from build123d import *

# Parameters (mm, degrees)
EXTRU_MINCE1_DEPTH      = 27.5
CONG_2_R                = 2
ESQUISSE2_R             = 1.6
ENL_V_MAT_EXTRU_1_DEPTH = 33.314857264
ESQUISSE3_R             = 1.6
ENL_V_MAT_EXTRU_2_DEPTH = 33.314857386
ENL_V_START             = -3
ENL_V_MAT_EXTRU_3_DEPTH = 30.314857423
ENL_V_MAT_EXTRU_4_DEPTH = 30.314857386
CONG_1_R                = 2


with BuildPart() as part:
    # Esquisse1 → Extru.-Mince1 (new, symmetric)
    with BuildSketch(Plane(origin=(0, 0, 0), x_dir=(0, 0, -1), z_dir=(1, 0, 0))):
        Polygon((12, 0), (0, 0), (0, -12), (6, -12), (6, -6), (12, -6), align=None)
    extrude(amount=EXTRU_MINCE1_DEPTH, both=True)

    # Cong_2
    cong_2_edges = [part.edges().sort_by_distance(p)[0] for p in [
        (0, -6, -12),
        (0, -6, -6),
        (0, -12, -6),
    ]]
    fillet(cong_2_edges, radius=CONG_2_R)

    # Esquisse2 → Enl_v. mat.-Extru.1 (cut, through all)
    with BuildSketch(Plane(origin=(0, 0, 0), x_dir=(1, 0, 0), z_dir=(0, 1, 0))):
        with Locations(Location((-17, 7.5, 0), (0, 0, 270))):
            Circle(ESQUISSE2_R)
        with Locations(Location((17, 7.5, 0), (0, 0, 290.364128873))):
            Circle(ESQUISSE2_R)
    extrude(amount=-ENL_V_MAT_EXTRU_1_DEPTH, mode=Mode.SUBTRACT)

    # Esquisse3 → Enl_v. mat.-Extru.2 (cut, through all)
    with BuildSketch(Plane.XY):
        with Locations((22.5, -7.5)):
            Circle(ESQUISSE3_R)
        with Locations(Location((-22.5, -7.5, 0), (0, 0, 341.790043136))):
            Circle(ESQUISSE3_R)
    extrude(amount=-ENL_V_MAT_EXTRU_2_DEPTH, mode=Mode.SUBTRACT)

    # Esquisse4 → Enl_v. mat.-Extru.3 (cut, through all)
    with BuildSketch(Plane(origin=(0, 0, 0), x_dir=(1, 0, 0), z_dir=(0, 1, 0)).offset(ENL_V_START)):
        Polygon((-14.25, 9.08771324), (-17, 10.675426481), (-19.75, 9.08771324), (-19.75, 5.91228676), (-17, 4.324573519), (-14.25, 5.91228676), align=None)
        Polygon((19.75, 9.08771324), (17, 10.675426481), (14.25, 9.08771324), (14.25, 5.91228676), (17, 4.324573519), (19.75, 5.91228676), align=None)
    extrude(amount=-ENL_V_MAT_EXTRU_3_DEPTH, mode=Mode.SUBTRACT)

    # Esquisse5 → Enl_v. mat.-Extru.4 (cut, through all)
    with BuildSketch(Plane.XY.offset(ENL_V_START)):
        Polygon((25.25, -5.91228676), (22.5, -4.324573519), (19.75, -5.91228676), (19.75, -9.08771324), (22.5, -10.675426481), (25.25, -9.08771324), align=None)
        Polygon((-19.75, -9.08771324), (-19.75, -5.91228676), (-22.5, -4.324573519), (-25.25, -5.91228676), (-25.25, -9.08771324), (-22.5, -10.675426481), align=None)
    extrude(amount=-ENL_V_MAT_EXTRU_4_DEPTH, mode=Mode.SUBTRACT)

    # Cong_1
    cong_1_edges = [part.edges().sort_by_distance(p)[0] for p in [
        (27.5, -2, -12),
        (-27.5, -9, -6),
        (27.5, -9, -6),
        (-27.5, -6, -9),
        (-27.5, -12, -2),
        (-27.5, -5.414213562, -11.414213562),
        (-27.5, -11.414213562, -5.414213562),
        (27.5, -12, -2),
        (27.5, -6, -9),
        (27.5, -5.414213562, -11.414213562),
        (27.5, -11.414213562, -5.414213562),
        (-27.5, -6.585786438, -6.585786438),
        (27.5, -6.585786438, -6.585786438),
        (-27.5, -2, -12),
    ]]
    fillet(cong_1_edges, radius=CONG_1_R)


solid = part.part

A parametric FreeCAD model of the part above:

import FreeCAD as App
import Part
import Sketcher
Q = App.Units.Quantity


def edges_at(feature, points):
    """Names of the edges that pass closest to the given points."""
    edges = feature.Shape.Edges
    near = lambda p: min(range(len(edges)), key=lambda i: edges[i].distToShape(Part.Vertex(*p))[0])
    return sorted({f"Edge{near(p) + 1}" for p in points})

doc = App.newDocument("Part")
body = doc.addObject("PartDesign::Body", "Body")

# Sketch on YZ plane
sketch1 = body.newObject("Sketcher::SketchObject", "Sketch")
sketch1.AttachmentSupport = (doc.getObject("YZ_Plane"), [""])
sketch1.MapMode = "FlatFace"
sketch1.addGeometry(Part.LineSegment(App.Vector(0, -12, 0), App.Vector(0, 0, 0)), False)
sketch1.addGeometry(Part.LineSegment(App.Vector(0, 0, 0), App.Vector(-12, 0, 0)), False)
sketch1.addGeometry(Part.LineSegment(App.Vector(-12, 0, 0), App.Vector(-12, -6, 0)), False)
sketch1.addGeometry(Part.LineSegment(App.Vector(-12, -6, 0), App.Vector(-6, -6, 0)), False)
sketch1.addGeometry(Part.LineSegment(App.Vector(-6, -6, 0), App.Vector(-6, -12, 0)), False)
sketch1.addGeometry(Part.LineSegment(App.Vector(-6, -12, 0), App.Vector(0, -12, 0)), False)
sketch1.addConstraint(Sketcher.Constraint("Coincident", 0, 2, 1, 1))
sketch1.addConstraint(Sketcher.Constraint("Coincident", 1, 2, 2, 1))
sketch1.addConstraint(Sketcher.Constraint("Coincident", 2, 2, 3, 1))
sketch1.addConstraint(Sketcher.Constraint("Coincident", 3, 2, 4, 1))
sketch1.addConstraint(Sketcher.Constraint("Coincident", 4, 2, 5, 1))
sketch1.addConstraint(Sketcher.Constraint("Coincident", 5, 2, 0, 1))
sketch1.addConstraint(Sketcher.Constraint("Vertical", 0))
sketch1.addConstraint(Sketcher.Constraint("Horizontal", 1))
sketch1.addConstraint(Sketcher.Constraint("Vertical", 2))
sketch1.addConstraint(Sketcher.Constraint("Horizontal", 3))
sketch1.addConstraint(Sketcher.Constraint("Vertical", 4))
sketch1.addConstraint(Sketcher.Constraint("Horizontal", 5))
sketch1.addConstraint(Sketcher.Constraint("Coincident", 0, 2, -1, 1))
sketch1.addConstraint(Sketcher.Constraint("Equal", 3, 5))
sketch1.addConstraint(Sketcher.Constraint("Equal", 1, 0))
sketch1.addConstraint(Sketcher.Constraint("Equal", 5, 2))
sketch1.addConstraint(Sketcher.Constraint("DistanceX", 1, 2, 1, 1, 12.0))
pad1 = body.newObject("PartDesign::Pad", "Pad")
pad1.Profile = sketch1
pad1.Length = 55
pad1.Midplane = True
doc.recompute()

fillet = body.newObject("PartDesign::Fillet", "Fillet")
fillet.Base = (pad1, edges_at(pad1, [(0, -6, -12), (0, -6, -6), (0, -12, -6)]))
fillet.Radius = 2

# Sketch on XZ plane
sketch2 = body.newObject("Sketcher::SketchObject", "Sketch001")
sketch2.AttachmentSupport = (doc.getObject("XZ_Plane"), [""])
sketch2.MapMode = "FlatFace"
sketch2.addGeometry(Part.Circle(App.Vector(-17, -7.5, 0), App.Vector(0, 0, 1), 1.6), False)
sketch2.addGeometry(Part.Circle(App.Vector(17, -7.5, 0), App.Vector(0, 0, 1), 1.6), False)
sketch2.addConstraint(Sketcher.Constraint("Equal", 0, 1))
sketch2.addConstraint(Sketcher.Constraint("Symmetric", 0, 3, 1, 3, -2))
sketch2.addConstraint(Sketcher.Constraint("Diameter", 0, 3.2))
sketch2.addConstraint(Sketcher.Constraint("DistanceX", 0, 3, -1, 1, 17.0))
sketch2.addConstraint(Sketcher.Constraint("DistanceY", 0, 3, -1, 1, 7.5))
pocket1 = body.newObject("PartDesign::Pocket", "Pocket")
pocket1.Profile = sketch2
pocket1.Type = "ThroughAll"
pocket1.Reversed = True

# Sketch on XY plane
sketch3 = body.newObject("Sketcher::SketchObject", "Sketch002")
sketch3.AttachmentSupport = (doc.getObject("XY_Plane"), [""])
sketch3.MapMode = "FlatFace"
sketch3.addGeometry(Part.Circle(App.Vector(22.5, -7.5, 0), App.Vector(0, 0, 1), 1.6), False)
sketch3.addGeometry(Part.Circle(App.Vector(-22.5, -7.5, 0), App.Vector(0, 0, 1), 1.6), False)
sketch3.addConstraint(Sketcher.Constraint("Equal", 0, 1))
sketch3.addConstraint(Sketcher.Constraint("Symmetric", 0, 3, 1, 3, -2))
sketch3.addConstraint(Sketcher.Constraint("Diameter", 0, 3.2))
sketch3.addConstraint(Sketcher.Constraint("DistanceX", 1, 3, 0, 3, 45.0))
sketch3.addConstraint(Sketcher.Constraint("DistanceY", 0, 3, -1, 1, 7.5))
pocket2 = body.newObject("PartDesign::Pocket", "Pocket001")
pocket2.Profile = sketch3
pocket2.Type = "ThroughAll"

# Sketch on XZ plane
sketch4 = body.newObject("Sketcher::SketchObject", "Sketch003")
sketch4.AttachmentSupport = (doc.getObject("XZ_Plane"), [""])
sketch4.MapMode = "FlatFace"
sketch4.AttachmentOffset = App.Placement(App.Vector(0, 0, 3), App.Rotation())
sketch4.addGeometry(Part.LineSegment(App.Vector(-14.2, -9.1, 0), App.Vector(-17, -10.7, 0)), False)
sketch4.addGeometry(Part.LineSegment(App.Vector(-17, -10.7, 0), App.Vector(-19.8, -9.1, 0)), False)
sketch4.addGeometry(Part.LineSegment(App.Vector(-19.8, -9.1, 0), App.Vector(-19.8, -5.9, 0)), False)
sketch4.addGeometry(Part.LineSegment(App.Vector(-19.8, -5.9, 0), App.Vector(-17, -4.3, 0)), False)
sketch4.addGeometry(Part.LineSegment(App.Vector(-17, -4.3, 0), App.Vector(-14.2, -5.9, 0)), False)
sketch4.addGeometry(Part.LineSegment(App.Vector(-14.2, -5.9, 0), App.Vector(-14.2, -9.1, 0)), False)
sketch4.addGeometry(Part.LineSegment(App.Vector(19.8, -9.1, 0), App.Vector(17, -10.7, 0)), False)
sketch4.addGeometry(Part.LineSegment(App.Vector(17, -10.7, 0), App.Vector(14.2, -9.1, 0)), False)
sketch4.addGeometry(Part.LineSegment(App.Vector(14.2, -9.1, 0), App.Vector(14.2, -5.9, 0)), False)
sketch4.addGeometry(Part.LineSegment(App.Vector(14.2, -5.9, 0), App.Vector(17, -4.3, 0)), False)
sketch4.addGeometry(Part.LineSegment(App.Vector(17, -4.3, 0), App.Vector(19.8, -5.9, 0)), False)
sketch4.addGeometry(Part.LineSegment(App.Vector(19.8, -5.9, 0), App.Vector(19.8, -9.1, 0)), False)
sketch4.addConstraint(Sketcher.Constraint("Coincident", 0, 2, 1, 1))
sketch4.addConstraint(Sketcher.Constraint("Coincident", 1, 2, 2, 1))
sketch4.addConstraint(Sketcher.Constraint("Coincident", 2, 2, 3, 1))
sketch4.addConstraint(Sketcher.Constraint("Coincident", 3, 2, 4, 1))
sketch4.addConstraint(Sketcher.Constraint("Coincident", 4, 2, 5, 1))
sketch4.addConstraint(Sketcher.Constraint("Coincident", 5, 2, 0, 1))
sketch4.addConstraint(Sketcher.Constraint("Coincident", 6, 2, 7, 1))
sketch4.addConstraint(Sketcher.Constraint("Coincident", 7, 2, 8, 1))
sketch4.addConstraint(Sketcher.Constraint("Coincident", 8, 2, 9, 1))
sketch4.addConstraint(Sketcher.Constraint("Coincident", 9, 2, 10, 1))
sketch4.addConstraint(Sketcher.Constraint("Coincident", 10, 2, 11, 1))
sketch4.addConstraint(Sketcher.Constraint("Coincident", 11, 2, 6, 1))
sketch4.addConstraint(Sketcher.Constraint("Vertical", 2))
sketch4.addConstraint(Sketcher.Constraint("Vertical", 5))
sketch4.addConstraint(Sketcher.Constraint("Vertical", 8))
sketch4.addConstraint(Sketcher.Constraint("Vertical", 11))
sketch4.addConstraint(Sketcher.Constraint("Symmetric", 0, 2, 6, 2, -2))
sketch4.addConstraint(Sketcher.Constraint("Symmetric", 5, 2, 7, 2, -2))
sketch4.addConstraint(Sketcher.Constraint("Symmetric", 3, 2, 9, 2, -2))
sketch4.addConstraint(Sketcher.Constraint("Symmetric", 2, 2, 10, 2, -2))
sketch4.addConstraint(Sketcher.Constraint("Parallel", 0, 3))
sketch4.addConstraint(Sketcher.Constraint("Parallel", 1, 4))
sketch4.addConstraint(Sketcher.Constraint("Parallel", 3, 6))
sketch4.addConstraint(Sketcher.Constraint("Parallel", 4, 7))
sketch4.addConstraint(Sketcher.Constraint("Parallel", 6, 9))
sketch4.addConstraint(Sketcher.Constraint("Horizontal", 2, 2, 4, 2))
sketch4.addConstraint(Sketcher.Constraint("Horizontal", 1, 2, 5, 2))
sketch4.addConstraint(Sketcher.Constraint("Angle", 0, Q("-150 deg")))
sketch4.addConstraint(Sketcher.Constraint("DistanceX", 0, 2, -1, 1, 17.0))
sketch4.addConstraint(Sketcher.Constraint("DistanceX", 2, 2, 4, 2, 5.5))
sketch4.addConstraint(Sketcher.Constraint("DistanceY", 2, 1, 2, 2, 3.175426))
sketch4.addConstraint(Sketcher.Constraint("DistanceY", 0, 2, -1, 1, 10.675426))
pocket3 = body.newObject("PartDesign::Pocket", "Pocket002")
pocket3.Profile = sketch4
pocket3.Type = "ThroughAll"
pocket3.Reversed = True

# Sketch on XY plane
sketch5 = body.newObject("Sketcher::SketchObject", "Sketch004")
sketch5.AttachmentSupport = (doc.getObject("XY_Plane"), [""])
sketch5.MapMode = "FlatFace"
sketch5.AttachmentOffset = App.Placement(App.Vector(0, 0, -3), App.Rotation())
sketch5.addGeometry(Part.LineSegment(App.Vector(25.2, -5.9, 0), App.Vector(22.5, -4.3, 0)), False)
sketch5.addGeometry(Part.LineSegment(App.Vector(22.5, -4.3, 0), App.Vector(19.8, -5.9, 0)), False)
sketch5.addGeometry(Part.LineSegment(App.Vector(19.8, -5.9, 0), App.Vector(19.8, -9.1, 0)), False)
sketch5.addGeometry(Part.LineSegment(App.Vector(19.8, -9.1, 0), App.Vector(22.5, -10.7, 0)), False)
sketch5.addGeometry(Part.LineSegment(App.Vector(22.5, -10.7, 0), App.Vector(25.2, -9.1, 0)), False)
sketch5.addGeometry(Part.LineSegment(App.Vector(25.2, -9.1, 0), App.Vector(25.2, -5.9, 0)), False)
sketch5.addGeometry(Part.LineSegment(App.Vector(-19.8, -9.1, 0), App.Vector(-19.8, -5.9, 0)), False)
sketch5.addGeometry(Part.LineSegment(App.Vector(-19.8, -5.9, 0), App.Vector(-22.5, -4.3, 0)), False)
sketch5.addGeometry(Part.LineSegment(App.Vector(-22.5, -4.3, 0), App.Vector(-25.2, -5.9, 0)), False)
sketch5.addGeometry(Part.LineSegment(App.Vector(-25.2, -5.9, 0), App.Vector(-25.2, -9.1, 0)), False)
sketch5.addGeometry(Part.LineSegment(App.Vector(-25.2, -9.1, 0), App.Vector(-22.5, -10.7, 0)), False)
sketch5.addGeometry(Part.LineSegment(App.Vector(-22.5, -10.7, 0), App.Vector(-19.8, -9.1, 0)), False)
sketch5.addConstraint(Sketcher.Constraint("Coincident", 0, 2, 1, 1))
sketch5.addConstraint(Sketcher.Constraint("Coincident", 1, 2, 2, 1))
sketch5.addConstraint(Sketcher.Constraint("Coincident", 2, 2, 3, 1))
sketch5.addConstraint(Sketcher.Constraint("Coincident", 3, 2, 4, 1))
sketch5.addConstraint(Sketcher.Constraint("Coincident", 4, 2, 5, 1))
sketch5.addConstraint(Sketcher.Constraint("Coincident", 5, 2, 0, 1))
sketch5.addConstraint(Sketcher.Constraint("Coincident", 6, 2, 7, 1))
sketch5.addConstraint(Sketcher.Constraint("Coincident", 7, 2, 8, 1))
sketch5.addConstraint(Sketcher.Constraint("Coincident", 8, 2, 9, 1))
sketch5.addConstraint(Sketcher.Constraint("Coincident", 9, 2, 10, 1))
sketch5.addConstraint(Sketcher.Constraint("Coincident", 10, 2, 11, 1))
sketch5.addConstraint(Sketcher.Constraint("Coincident", 11, 2, 6, 1))
sketch5.addConstraint(Sketcher.Constraint("Vertical", 2))
sketch5.addConstraint(Sketcher.Constraint("Vertical", 5))
sketch5.addConstraint(Sketcher.Constraint("Vertical", 6))
sketch5.addConstraint(Sketcher.Constraint("Vertical", 9))
sketch5.addConstraint(Sketcher.Constraint("Symmetric", 1, 2, 6, 2, -2))
sketch5.addConstraint(Sketcher.Constraint("Symmetric", 0, 2, 7, 2, -2))
sketch5.addConstraint(Sketcher.Constraint("Symmetric", 5, 2, 8, 2, -2))
sketch5.addConstraint(Sketcher.Constraint("Symmetric", 3, 2, 10, 2, -2))
sketch5.addConstraint(Sketcher.Constraint("Parallel", 0, 3))
sketch5.addConstraint(Sketcher.Constraint("Parallel", 1, 4))
sketch5.addConstraint(Sketcher.Constraint("Parallel", 3, 7))
sketch5.addConstraint(Sketcher.Constraint("Parallel", 7, 10))
sketch5.addConstraint(Sketcher.Constraint("Parallel", 8, 11))
sketch5.addConstraint(Sketcher.Constraint("Horizontal", 2, 2, 4, 2))
sketch5.addConstraint(Sketcher.Constraint("Horizontal", 1, 2, 5, 2))
sketch5.addConstraint(Sketcher.Constraint("Angle", 0, Q("150 deg")))
sketch5.addConstraint(Sketcher.Constraint("DistanceX", 6, 2, 5, 2, 45.0))
sketch5.addConstraint(Sketcher.Constraint("DistanceX", 2, 2, 4, 2, 5.5))
sketch5.addConstraint(Sketcher.Constraint("DistanceY", 2, 2, 2, 1, 3.175426))
sketch5.addConstraint(Sketcher.Constraint("DistanceY", 0, 2, -1, 1, 4.324574))
pocket4 = body.newObject("PartDesign::Pocket", "Pocket003")
pocket4.Profile = sketch5
pocket4.Type = "ThroughAll"
doc.recompute()

fillet2 = body.newObject("PartDesign::Fillet", "Fillet001")
fillet2.Base = (pocket4, edges_at(pocket4, [
    (27.5, -2, -12),
    (-27.5, -9, -6),
    (27.5, -9, -6),
    (-27.5, -6, -9),
    (-27.5, -12, -2),
    (-27.5, -5.414, -11.414),
    (-27.5, -11.414, -5.414),
    (27.5, -12, -2),
    (27.5, -6, -9),
    (27.5, -5.414, -11.414),
    (27.5, -11.414, -5.414),
    (-27.5, -6.586, -6.586),
    (27.5, -6.586, -6.586),
    (-27.5, -2, -12),
]))
fillet2.Radius = 2

doc.recompute()
